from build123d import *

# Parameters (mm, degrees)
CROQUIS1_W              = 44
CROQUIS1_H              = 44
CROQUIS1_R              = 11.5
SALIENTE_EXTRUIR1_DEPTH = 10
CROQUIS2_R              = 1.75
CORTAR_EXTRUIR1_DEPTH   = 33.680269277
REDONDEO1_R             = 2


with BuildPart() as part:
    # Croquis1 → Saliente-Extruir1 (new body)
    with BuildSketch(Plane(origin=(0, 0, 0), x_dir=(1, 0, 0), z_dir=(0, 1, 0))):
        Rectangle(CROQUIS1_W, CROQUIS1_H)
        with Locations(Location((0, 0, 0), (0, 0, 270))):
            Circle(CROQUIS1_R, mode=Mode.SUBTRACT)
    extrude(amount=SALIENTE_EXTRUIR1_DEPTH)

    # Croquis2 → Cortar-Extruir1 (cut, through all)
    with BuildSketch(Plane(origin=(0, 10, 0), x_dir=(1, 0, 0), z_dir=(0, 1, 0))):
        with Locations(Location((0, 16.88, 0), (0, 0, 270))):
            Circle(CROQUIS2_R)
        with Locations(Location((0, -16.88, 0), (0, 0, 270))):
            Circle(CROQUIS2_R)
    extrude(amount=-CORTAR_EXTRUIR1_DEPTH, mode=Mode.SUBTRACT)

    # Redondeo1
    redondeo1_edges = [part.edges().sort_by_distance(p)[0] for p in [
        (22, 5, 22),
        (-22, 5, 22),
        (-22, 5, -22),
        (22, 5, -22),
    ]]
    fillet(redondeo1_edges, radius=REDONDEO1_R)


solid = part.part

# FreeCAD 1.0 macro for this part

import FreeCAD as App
import Part
import Sketcher
from FreeCAD import Vector


def edges_at(feature, points):
    """Names of the edges that pass closest to the given points."""
    edges = feature.Shape.Edges
    near = lambda p: min(range(len(edges)), key=lambda i: edges[i].distToShape(Part.Vertex(*p))[0])
    return sorted({f"Edge{near(p) + 1}" for p in points})


def add_polygon(sketch, points):
    """Adds a closed chain of lines whose ends are joined by coincident constraints."""
    first, n = sketch.GeometryCount, len(points)
    for a, b in zip(points, points[1:] + points[:1]):
        sketch.addGeometry(Part.LineSegment(App.Vector(*a, 0), App.Vector(*b, 0)), False)
    for i in range(n):
        sketch.addConstraint(Sketcher.Constraint("Coincident", first + i, 2, first + (i + 1) % n, 1))

doc = App.newDocument("Part")
body = doc.addObject("PartDesign::Body", "Body")

# Sketch on XZ plane
sketch1 = body.newObject("Sketcher::SketchObject", "Sketch")
sketch1.AttachmentSupport = (doc.getObject("XZ_Plane"), [""])
sketch1.MapMode = "FlatFace"
add_polygon(sketch1, [(-22, -22), (-22, 22), (22, 22), (22, -22)])  # lines 0-3
sketch1.addGeometry(Part.Circle(Vector(0, 0, 0), Vector(0, 0, 1), 12), False)  # 4
sketch1.addConstraint([
    Sketcher.Constraint("Vertical", 0),
    Sketcher.Constraint("Horizontal", 1),
    Sketcher.Constraint("Vertical", 2),
    Sketcher.Constraint("Horizontal", 3),
    Sketcher.Constraint("Coincident", 4, 3, -1, 1),
    Sketcher.Constraint("Symmetric", 0, 2, 2, 2, -1, 1),
    Sketcher.Constraint("Equal", 3, 0),
    Sketcher.Constraint("Diameter", 4, 23.0),
    Sketcher.Constraint("DistanceX", 1, 1, 1, 2, 44.0),
])
pad1 = body.newObject("PartDesign::Pad", "Pad")
pad1.Profile = sketch1
pad1.Length = 10
pad1.Reversed = True

# Sketch on XZ plane
sketch2 = body.newObject("Sketcher::SketchObject", "Sketch001")
sketch2.AttachmentSupport = (doc.getObject("XZ_Plane"), [""])
sketch2.MapMode = "FlatFace"
sketch2.AttachmentOffset = App.Placement(Vector(0, 0, -10), App.Rotation())
sketch2.addGeometry([
    Part.Circle(Vector(0, -16.9, 0), Vector(0, 0, 1), 1.8),
    Part.Circle(Vector(0, 16.9, 0), Vector(0, 0, 1), 1.8),
], False)
sketch2.addConstraint([
    Sketcher.Constraint("Equal", 0, 1),
    Sketcher.Constraint("Symmetric", 0, 3, 1, 3, -1, 1),
    Sketcher.Constraint("PointOnObject", 0, 3, -2),
    Sketcher.Constraint("Diameter", 0, 3.5),
    Sketcher.Constraint("DistanceY", 0, 3, -1, 1, 16.88),
])
pocket1 = body.newObject("PartDesign::Pocket", "Pocket")
pocket1.Profile = sketch2
pocket1.Type = "ThroughAll"
pocket1.Reversed = True
doc.recompute()

fillet = body.newObject("PartDesign::Fillet", "Fillet")
fillet.Base = (pocket1, edges_at(pocket1, [
    (22, 5, 22),
    (-22, 5, 22),
    (-22, 5, -22),
    (22, 5, -22),
]))
fillet.Radius = 2

doc.recompute()
